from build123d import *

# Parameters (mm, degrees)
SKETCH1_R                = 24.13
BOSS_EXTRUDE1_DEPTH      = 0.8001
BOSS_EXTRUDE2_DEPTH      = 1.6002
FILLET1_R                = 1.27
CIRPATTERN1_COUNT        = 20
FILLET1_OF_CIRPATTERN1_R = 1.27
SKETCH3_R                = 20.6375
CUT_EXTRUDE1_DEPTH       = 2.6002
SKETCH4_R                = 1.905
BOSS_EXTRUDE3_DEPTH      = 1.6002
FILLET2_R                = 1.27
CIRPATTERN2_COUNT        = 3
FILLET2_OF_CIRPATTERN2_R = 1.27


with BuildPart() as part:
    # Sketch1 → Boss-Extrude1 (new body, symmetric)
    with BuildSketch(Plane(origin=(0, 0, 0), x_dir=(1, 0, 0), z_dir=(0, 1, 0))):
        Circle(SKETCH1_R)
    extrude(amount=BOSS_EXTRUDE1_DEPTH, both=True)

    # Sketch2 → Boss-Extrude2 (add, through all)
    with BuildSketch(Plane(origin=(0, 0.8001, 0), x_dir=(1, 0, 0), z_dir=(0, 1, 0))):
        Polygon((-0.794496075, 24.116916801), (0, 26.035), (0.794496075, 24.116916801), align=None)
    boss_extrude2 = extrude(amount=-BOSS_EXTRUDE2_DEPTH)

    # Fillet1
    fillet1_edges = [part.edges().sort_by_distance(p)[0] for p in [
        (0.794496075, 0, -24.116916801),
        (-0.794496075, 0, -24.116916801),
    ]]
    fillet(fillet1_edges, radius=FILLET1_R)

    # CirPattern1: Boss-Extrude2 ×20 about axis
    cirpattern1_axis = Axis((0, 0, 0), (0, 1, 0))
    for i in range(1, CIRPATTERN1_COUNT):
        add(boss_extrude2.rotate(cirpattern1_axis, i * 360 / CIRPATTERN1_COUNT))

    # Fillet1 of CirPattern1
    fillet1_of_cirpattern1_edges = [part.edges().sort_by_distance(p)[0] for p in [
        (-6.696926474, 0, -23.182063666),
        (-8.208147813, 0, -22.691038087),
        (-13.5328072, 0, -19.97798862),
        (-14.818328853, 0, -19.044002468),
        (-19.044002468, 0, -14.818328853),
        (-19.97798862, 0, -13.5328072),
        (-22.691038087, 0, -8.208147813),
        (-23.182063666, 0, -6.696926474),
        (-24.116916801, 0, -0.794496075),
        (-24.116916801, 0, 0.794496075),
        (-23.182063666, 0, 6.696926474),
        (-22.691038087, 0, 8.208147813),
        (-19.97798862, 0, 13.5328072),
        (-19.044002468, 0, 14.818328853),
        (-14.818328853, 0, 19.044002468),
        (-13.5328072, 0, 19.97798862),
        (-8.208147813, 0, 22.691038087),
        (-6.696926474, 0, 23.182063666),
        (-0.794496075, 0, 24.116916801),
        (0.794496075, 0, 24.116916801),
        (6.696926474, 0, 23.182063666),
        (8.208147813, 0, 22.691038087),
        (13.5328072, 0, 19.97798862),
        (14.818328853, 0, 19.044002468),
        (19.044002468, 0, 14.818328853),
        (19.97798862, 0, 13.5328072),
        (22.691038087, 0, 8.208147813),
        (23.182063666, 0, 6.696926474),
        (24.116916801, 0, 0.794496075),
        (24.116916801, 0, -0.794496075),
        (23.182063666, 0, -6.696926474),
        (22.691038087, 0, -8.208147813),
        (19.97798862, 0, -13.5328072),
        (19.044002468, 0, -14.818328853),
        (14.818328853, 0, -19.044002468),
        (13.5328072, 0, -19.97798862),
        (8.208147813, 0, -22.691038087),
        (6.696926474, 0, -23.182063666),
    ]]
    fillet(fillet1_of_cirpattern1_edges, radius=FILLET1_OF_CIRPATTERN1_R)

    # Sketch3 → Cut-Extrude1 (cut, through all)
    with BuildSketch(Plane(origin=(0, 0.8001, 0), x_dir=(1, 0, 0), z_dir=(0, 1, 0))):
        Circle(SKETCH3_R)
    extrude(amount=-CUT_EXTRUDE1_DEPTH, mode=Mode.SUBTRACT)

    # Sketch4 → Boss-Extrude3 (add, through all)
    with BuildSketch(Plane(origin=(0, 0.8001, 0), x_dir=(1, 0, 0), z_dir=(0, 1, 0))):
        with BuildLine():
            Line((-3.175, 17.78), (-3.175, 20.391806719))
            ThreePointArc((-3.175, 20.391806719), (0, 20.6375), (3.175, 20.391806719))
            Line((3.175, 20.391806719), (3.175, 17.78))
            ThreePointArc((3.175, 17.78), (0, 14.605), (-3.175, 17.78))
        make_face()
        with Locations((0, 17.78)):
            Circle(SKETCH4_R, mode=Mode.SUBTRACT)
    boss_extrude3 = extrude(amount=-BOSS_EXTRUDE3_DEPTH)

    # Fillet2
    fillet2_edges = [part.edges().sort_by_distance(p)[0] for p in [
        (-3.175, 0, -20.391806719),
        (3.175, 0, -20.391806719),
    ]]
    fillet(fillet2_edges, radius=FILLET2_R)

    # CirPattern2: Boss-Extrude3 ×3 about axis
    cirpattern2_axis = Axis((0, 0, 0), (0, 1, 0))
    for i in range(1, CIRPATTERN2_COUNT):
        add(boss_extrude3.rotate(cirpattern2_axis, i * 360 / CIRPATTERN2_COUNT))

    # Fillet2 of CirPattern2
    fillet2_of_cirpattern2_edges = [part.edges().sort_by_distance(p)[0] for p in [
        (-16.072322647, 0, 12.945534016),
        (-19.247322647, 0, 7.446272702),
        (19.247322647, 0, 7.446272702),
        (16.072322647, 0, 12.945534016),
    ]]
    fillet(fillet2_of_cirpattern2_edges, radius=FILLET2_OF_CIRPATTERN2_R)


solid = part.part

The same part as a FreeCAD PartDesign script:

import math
import FreeCAD as App
import Part
import Sketcher
Q = App.Units.Quantity


def edges_at(feature, points):
    """Names of the edges that pass closest to the given points."""
    edges = feature.Shape.Edges
    near = lambda p: min(range(len(edges)), key=lambda i: edges[i].distToShape(Part.Vertex(*p))[0])
    return sorted({f"Edge{near(p) + 1}" for p in points})

doc = App.newDocument("Part")
body = doc.addObject("PartDesign::Body", "Body")

sketch1 = body.newObject("Sketcher::SketchObject", "Sketch")
sketch1.AttachmentSupport = (doc.getObject("XZ_Plane"), [""])
sketch1.MapMode = "FlatFace"
sketch1.addGeometry(Part.Circle(App.Vector(0, 0, 0), App.Vector(0, 0, 1), 24.13), False)
sketch1.addConstraint(Sketcher.Constraint("Coincident", 0, 3, -1, 1))
sketch1.addConstraint(Sketcher.Constraint("Diameter", 0, Q("1.9 in")))
pad1 = body.newObject("PartDesign::Pad", "Pad")
pad1.Profile = sketch1
pad1.Length = Q("0.063 in")
pad1.Midplane = True

sketch2 = body.newObject("Sketcher::SketchObject", "Sketch001")
sketch2.AttachmentSupport = (doc.getObject("XZ_Plane"), [""])
sketch2.MapMode = "FlatFace"
sketch2.AttachmentOffset = App.Placement(App.Vector(0, 0, -0.0315 * 25.4), App.Rotation())
sketch2.addGeometry(Part.LineSegment(App.Vector(0, -26.035, 0), App.Vector(-0.794496, -24.116917, 0)), False)
sketch2.addGeometry(Part.LineSegment(App.Vector(-0.794496, -24.116917, 0), App.Vector(0.794496, -24.116917, 0)), False)
sketch2.addGeometry(Part.LineSegment(App.Vector(0.794496, -24.116917, 0), App.Vector(0, -26.035, 0)), False)
sketch2.addConstraint(Sketcher.Constraint("Coincident", 0, 2, 1, 1))
sketch2.addConstraint(Sketcher.Constraint("Coincident", 1, 2, 2, 1))
sketch2.addConstraint(Sketcher.Constraint("Coincident", 2, 2, 0, 1))
sketch2.addConstraint(Sketcher.Constraint("Horizontal", 1))
sketch2.addConstraint(Sketcher.Constraint("PointOnObject", 2, 2, -2))
sketch2.addConstraint(Sketcher.Constraint("Equal", 0, 2))
sketch2.addConstraint(Sketcher.Constraint("Angle", 0, Q("112.5 deg")))
sketch2.addConstraint(Sketcher.Constraint("DistanceY", 2, 2, -1, 1, Q("1.025 in")))
sketch2.addConstraint(Sketcher.Constraint("Distance", 0, Q("2.076118 mm")))
pad2 = body.newObject("PartDesign::Pad", "Pad001")
pad2.Profile = sketch2
pad2.Length = Q("0.063 in")
doc.recompute()

fillet = body.newObject("PartDesign::Fillet", "Fillet")
fillet.Base = (pad2, edges_at(pad2, [(0.794, 0, -24.117), (-0.794, 0, -24.117)]))
fillet.Radius = Q("0.05 in")
doc.recompute()

polarpattern = body.newObject("PartDesign::PolarPattern", "PolarPattern")
polarpattern.Originals = [pad2]
polarpattern.Axis = (doc.getObject("Y_Axis"), [""])
polarpattern.Angle = 360
polarpattern.Occurrences = 20
body.Tip = polarpattern
doc.recompute()

fillet2 = body.newObject("PartDesign::Fillet", "Fillet001")
fillet2.Base = (polarpattern, edges_at(polarpattern, [
    (-6.697, 0, -23.182),
    (-8.208, 0, -22.691),
    (-13.533, 0, -19.978),
    (-14.818, 0, -19.044),
    (-19.044, 0, -14.818),
    (-19.978, 0, -13.533),
    (-22.691, 0, -8.208),
    (-23.182, 0, -6.697),
    (-24.117, 0, -0.794),
    (-24.117, 0, 0.794),
    (-23.182, 0, 6.697),
    (-22.691, 0, 8.208),
    (-19.978, 0, 13.533),
    (-19.044, 0, 14.818),
    (-14.818, 0, 19.044),
    (-13.533, 0, 19.978),
    (-8.208, 0, 22.691),
    (-6.697, 0, 23.182),
    (-0.794, 0, 24.117),
    (0.794, 0, 24.117),
    (6.697, 0, 23.182),
    (8.208, 0, 22.691),
    (13.533, 0, 19.978),
    (14.818, 0, 19.044),
    (19.044, 0, 14.818),
    (19.978, 0, 13.533),
    (22.691, 0, 8.208),
    (23.182, 0, 6.697),
    (24.117, 0, 0.794),
    (24.117, 0, -0.794),
    (23.182, 0, -6.697),
    (22.691, 0, -8.208),
    (19.978, 0, -13.533),
    (19.044, 0, -14.818),
    (14.818, 0, -19.044),
    (13.533, 0, -19.978),
    (8.208, 0, -22.691),
    (6.697, 0, -23.182),
]))
fillet2.Radius = Q("0.05 in")

sketch3 = body.newObject("Sketcher::SketchObject", "Sketch002")
sketch3.AttachmentSupport = (doc.getObject("XZ_Plane"), [""])
sketch3.MapMode = "FlatFace"
sketch3.AttachmentOffset = App.Placement(App.Vector(0, 0, -0.0315 * 25.4), App.Rotation())
sketch3.addGeometry(Part.Circle(App.Vector(0, 0, 0), App.Vector(0, 0, 1), 20.6375), False)
sketch3.addConstraint(Sketcher.Constraint("Coincident", 0, 3, -1, 1))
sketch3.addConstraint(Sketcher.Constraint("Diameter", 0, Q("1.625 in")))
pocket1 = body.newObject("PartDesign::Pocket", "Pocket")
pocket1.Profile = sketch3
pocket1.Type = "ThroughAll"
pocket1.Reversed = True

sketch4 = body.newObject("Sketcher::SketchObject", "Sketch003")
sketch4.AttachmentSupport = (doc.getObject("XZ_Plane"), [""])
sketch4.MapMode = "FlatFace"
sketch4.AttachmentOffset = App.Placement(App.Vector(0, 0, -0.0315 * 25.4), App.Rotation())
sketch4.addGeometry(Part.LineSegment(App.Vector(-3.175, -20.391807, 0), App.Vector(-3.175, -17.78, 0)), False)
sketch4.addGeometry(Part.ArcOfCircle(Part.Circle(App.Vector(0, -17.78, 0), App.Vector(0, 0, 1), 3.175), math.radians(0), math.radians(180)), False)
sketch4.addGeometry(Part.LineSegment(App.Vector(3.175, -17.78, 0), App.Vector(3.175, -20.391807, 0)), False)
sketch4.addGeometry(Part.ArcOfCircle(Part.Circle(App.Vector(0, 0, 0), App.Vector(0, 0, 1), 20.6375), math.radians(-98.849883), math.radians(-81.150117)), False)
sketch4.addGeometry(Part.Circle(App.Vector(0, -17.78, 0), App.Vector(0, 0, 1), 1.905), False)
sketch4.addConstraint(Sketcher.Constraint("Tangent", 0, 2, 1, 2))
sketch4.addConstraint(Sketcher.Constraint("Tangent", 1, 1, 2, 1))
sketch4.addConstraint(Sketcher.Constraint("Coincident", 2, 2, 3, 2))
sketch4.addConstraint(Sketcher.Constraint("Coincident", 3, 1, 0, 1))
sketch4.addConstraint(Sketcher.Constraint("Vertical", 0))
sketch4.addConstraint(Sketcher.Constraint("Vertical", 2))
sketch4.addConstraint(Sketcher.Constraint("Coincident", 3, 3, -1, 1))
sketch4.addConstraint(Sketcher.Constraint("Coincident", 4, 3, 1, 3))
sketch4.addConstraint(Sketcher.Constraint("PointOnObject", 1, 3, -2))
sketch4.addConstraint(Sketcher.Constraint("Diameter", 4, Q("0.15 in")))
sketch4.addConstraint(Sketcher.Constraint("Radius", 1, Q("0.125 in")))
sketch4.addConstraint(Sketcher.Constraint("Radius", 3, Q("0.8125 in")))
sketch4.addConstraint(Sketcher.Constraint("DistanceY", 1, 3, -1, 1, Q("0.7 in")))
pad3 = body.newObject("PartDesign::Pad", "Pad002")
pad3.Profile = sketch4
pad3.Length = Q("0.063 in")
doc.recompute()

fillet3 = body.newObject("PartDesign::Fillet", "Fillet002")
fillet3.Base = (pad3, edges_at(pad3, [(-3.175, 0, -20.392), (3.175, 0, -20.392)]))
fillet3.Radius = Q("0.05 in")
doc.recompute()

polarpattern2 = body.newObject("PartDesign::PolarPattern", "PolarPattern001")
polarpattern2.Originals = [pad3]
polarpattern2.Axis = (doc.getObject("Y_Axis"), [""])
polarpattern2.Angle = 360
polarpattern2.Occurrences = 3
body.Tip = polarpattern2
doc.recompute()

fillet4 = body.newObject("PartDesign::Fillet", "Fillet003")
fillet4.Base = (polarpattern2, edges_at(polarpattern2, [
    (-16.072, 0, 12.946),
    (-19.247, 0, 7.446),
    (19.247, 0, 7.446),
    (16.072, 0, 12.946),
]))
fillet4.Radius = Q("0.05 in")

doc.recompute()
